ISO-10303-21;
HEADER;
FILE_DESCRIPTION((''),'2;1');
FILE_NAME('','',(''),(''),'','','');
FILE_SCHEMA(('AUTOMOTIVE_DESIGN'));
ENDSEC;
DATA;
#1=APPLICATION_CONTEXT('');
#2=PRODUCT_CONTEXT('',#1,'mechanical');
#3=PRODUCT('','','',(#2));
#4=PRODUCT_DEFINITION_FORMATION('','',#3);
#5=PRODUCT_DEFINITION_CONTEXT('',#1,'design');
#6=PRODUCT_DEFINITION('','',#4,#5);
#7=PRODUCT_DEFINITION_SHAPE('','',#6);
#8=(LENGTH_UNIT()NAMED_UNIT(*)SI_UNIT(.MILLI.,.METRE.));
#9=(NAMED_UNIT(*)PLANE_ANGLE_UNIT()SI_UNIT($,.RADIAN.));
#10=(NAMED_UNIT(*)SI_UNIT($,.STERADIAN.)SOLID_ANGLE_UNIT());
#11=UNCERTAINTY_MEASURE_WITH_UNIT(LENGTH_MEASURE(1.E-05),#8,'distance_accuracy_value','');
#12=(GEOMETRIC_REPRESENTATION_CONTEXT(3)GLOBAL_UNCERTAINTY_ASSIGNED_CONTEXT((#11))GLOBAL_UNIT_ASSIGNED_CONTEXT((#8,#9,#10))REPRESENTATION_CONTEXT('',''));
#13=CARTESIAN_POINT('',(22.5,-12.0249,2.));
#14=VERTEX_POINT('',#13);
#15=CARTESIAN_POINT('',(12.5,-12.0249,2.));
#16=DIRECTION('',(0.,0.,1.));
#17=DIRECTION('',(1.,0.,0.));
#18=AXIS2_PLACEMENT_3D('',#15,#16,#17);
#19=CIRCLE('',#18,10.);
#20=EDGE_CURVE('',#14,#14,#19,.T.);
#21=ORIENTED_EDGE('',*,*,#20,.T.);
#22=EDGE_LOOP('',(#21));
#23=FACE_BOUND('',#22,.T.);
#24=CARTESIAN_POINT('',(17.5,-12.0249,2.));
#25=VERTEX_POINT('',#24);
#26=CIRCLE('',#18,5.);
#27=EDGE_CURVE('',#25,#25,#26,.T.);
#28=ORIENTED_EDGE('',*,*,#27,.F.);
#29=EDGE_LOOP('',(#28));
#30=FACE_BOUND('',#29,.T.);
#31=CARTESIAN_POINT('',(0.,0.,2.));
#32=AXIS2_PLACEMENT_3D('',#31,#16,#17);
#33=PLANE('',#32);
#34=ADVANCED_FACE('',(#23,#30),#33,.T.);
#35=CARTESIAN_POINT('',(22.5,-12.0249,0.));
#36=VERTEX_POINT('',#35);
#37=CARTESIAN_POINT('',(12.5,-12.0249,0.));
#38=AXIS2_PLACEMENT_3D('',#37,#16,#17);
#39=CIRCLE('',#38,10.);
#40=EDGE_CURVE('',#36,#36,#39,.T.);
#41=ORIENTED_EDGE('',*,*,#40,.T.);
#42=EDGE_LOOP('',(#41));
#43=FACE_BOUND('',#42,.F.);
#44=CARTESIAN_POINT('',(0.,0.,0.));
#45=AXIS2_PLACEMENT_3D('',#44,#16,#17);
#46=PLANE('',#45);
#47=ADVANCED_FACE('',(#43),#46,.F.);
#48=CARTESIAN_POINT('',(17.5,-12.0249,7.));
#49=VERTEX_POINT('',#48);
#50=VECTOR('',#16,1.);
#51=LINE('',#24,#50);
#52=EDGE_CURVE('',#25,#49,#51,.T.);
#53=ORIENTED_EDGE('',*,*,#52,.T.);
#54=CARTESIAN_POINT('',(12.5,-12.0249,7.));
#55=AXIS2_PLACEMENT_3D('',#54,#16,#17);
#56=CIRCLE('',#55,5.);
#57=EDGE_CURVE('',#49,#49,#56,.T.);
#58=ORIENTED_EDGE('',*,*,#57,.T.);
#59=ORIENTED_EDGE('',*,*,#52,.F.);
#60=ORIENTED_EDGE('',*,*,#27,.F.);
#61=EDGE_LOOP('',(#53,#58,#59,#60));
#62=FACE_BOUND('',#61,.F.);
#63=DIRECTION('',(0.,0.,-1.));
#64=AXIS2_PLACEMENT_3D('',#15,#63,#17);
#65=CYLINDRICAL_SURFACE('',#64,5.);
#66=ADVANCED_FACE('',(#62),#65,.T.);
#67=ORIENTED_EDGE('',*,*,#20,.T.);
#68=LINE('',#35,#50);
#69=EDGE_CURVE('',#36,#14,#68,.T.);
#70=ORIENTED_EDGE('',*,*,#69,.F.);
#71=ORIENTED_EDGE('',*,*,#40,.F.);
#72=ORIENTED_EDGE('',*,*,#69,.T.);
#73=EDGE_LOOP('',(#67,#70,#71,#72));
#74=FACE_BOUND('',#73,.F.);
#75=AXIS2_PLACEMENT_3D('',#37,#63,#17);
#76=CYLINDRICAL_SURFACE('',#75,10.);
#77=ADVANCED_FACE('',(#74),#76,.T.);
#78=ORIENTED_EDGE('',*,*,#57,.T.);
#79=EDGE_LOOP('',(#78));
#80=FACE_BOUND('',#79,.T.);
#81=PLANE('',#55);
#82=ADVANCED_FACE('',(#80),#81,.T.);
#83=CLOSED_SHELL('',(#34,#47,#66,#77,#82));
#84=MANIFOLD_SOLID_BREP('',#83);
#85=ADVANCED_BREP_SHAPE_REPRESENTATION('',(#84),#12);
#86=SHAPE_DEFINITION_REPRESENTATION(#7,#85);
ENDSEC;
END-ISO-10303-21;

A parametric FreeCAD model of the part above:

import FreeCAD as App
import Part
import Sketcher

doc = App.newDocument("Part")
body = doc.addObject("PartDesign::Body", "Body")

sketch1 = body.newObject("Sketcher::SketchObject", "Sketch")
sketch1.AttachmentSupport = (doc.getObject("XY_Plane"), [""])
sketch1.MapMode = "FlatFace"
sketch1.addGeometry(Part.Circle(App.Vector(12, -12, 0), App.Vector(0, 0, 1), 10), False)
sketch1.addConstraint(Sketcher.Constraint("Diameter", 0, 20.0))
sketch1.addConstraint(Sketcher.Constraint("DistanceX", -1, 1, 0, 3, 12.5))
sketch1.addConstraint(Sketcher.Constraint("DistanceY", 0, 3, -1, 1, 12.025))
pad1 = body.newObject("PartDesign::Pad", "Pad")
pad1.Profile = sketch1
pad1.Length = 2

sketch2 = body.newObject("Sketcher::SketchObject", "Sketch001")
sketch2.AttachmentSupport = (doc.getObject("XY_Plane"), [""])
sketch2.MapMode = "FlatFace"
sketch2.AttachmentOffset = App.Placement(App.Vector(0, 0, 2), App.Rotation())
sketch2.addGeometry(Part.Circle(App.Vector(12, -12, 0), App.Vector(0, 0, 1), 5), False)
sketch2.addConstraint(Sketcher.Constraint("Diameter", 0, 10.0))
sketch2.addConstraint(Sketcher.Constraint("DistanceX", -1, 1, 0, 3, 12.5))
sketch2.addConstraint(Sketcher.Constraint("DistanceY", 0, 3, -1, 1, 12.025))
pad2 = body.newObject("PartDesign::Pad", "Pad001")
pad2.Profile = sketch2
pad2.Length = 5

doc.recompute()
